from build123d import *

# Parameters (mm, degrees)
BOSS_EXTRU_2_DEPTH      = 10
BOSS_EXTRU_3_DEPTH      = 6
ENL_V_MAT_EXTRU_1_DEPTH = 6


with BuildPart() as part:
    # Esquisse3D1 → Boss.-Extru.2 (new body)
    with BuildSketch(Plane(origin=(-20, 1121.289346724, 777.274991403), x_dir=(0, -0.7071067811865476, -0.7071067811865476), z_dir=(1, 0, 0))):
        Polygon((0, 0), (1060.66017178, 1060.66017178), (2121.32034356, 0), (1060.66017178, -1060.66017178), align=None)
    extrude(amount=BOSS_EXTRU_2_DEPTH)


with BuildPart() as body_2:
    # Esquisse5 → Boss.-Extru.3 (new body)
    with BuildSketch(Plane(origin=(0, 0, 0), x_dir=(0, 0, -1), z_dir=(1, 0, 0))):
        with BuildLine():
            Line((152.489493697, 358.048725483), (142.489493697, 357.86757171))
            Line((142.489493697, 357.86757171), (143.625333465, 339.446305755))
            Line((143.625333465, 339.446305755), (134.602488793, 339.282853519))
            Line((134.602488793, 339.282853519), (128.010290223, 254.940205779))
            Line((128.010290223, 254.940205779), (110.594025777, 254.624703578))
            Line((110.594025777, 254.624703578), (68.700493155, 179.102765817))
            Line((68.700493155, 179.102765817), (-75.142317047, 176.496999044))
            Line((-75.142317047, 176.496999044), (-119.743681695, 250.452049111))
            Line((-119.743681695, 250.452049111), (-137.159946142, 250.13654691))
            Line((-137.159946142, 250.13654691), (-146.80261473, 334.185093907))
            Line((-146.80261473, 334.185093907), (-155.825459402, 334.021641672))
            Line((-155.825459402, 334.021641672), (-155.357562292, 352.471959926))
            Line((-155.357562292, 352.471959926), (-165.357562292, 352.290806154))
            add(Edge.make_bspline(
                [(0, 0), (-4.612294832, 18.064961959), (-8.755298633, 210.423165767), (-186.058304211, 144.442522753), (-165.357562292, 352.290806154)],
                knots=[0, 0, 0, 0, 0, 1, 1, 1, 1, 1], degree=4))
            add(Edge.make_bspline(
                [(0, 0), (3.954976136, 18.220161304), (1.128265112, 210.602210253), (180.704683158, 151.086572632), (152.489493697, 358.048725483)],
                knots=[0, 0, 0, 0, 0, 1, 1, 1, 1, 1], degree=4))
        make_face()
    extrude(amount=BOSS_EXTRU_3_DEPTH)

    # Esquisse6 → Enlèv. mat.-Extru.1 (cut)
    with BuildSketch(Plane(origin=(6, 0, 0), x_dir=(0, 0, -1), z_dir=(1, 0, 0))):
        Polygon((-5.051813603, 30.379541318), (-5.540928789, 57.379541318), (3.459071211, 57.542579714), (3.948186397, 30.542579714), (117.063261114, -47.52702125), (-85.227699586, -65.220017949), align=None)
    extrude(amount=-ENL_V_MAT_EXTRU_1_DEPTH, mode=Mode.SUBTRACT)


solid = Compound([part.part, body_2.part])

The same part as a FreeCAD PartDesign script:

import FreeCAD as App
import Part
import Sketcher

V = App.Vector
Q = App.Units.Quantity

doc = App.newDocument("Part")
body = doc.addObject("PartDesign::Body", "Body")

sketch1 = body.newObject("Sketcher::SketchObject", "Sketch")
sketch1.AttachmentSupport = (doc.getObject("YZ_Plane"), [""])
sketch1.MapMode = "FlatFace"
sketch1.AttachmentOffset = App.Placement(V(0, 0, -20), App.Rotation())
sketch1.addGeometry([
    Part.LineSegment(V(1121.289347, -722.725008, 0), V(1121.289347, 777.274991, 0)),
    Part.LineSegment(V(1121.289347, 777.274991, 0), V(-378.710653, 777.274991, 0)),
    Part.LineSegment(V(-378.710653, 777.274991, 0), V(-378.710653, -722.725008, 0)),
    Part.LineSegment(V(-378.710653, -722.725008, 0), V(1121.289347, -722.725008, 0)),
], False)
sketch1.addConstraint([
    Sketcher.Constraint("Coincident", 0, 2, 1, 1),
    Sketcher.Constraint("Coincident", 1, 2, 2, 1),
    Sketcher.Constraint("Coincident", 2, 2, 3, 1),
    Sketcher.Constraint("Coincident", 3, 2, 0, 1),
    Sketcher.Constraint("Vertical", 0),
    Sketcher.Constraint("Horizontal", 1),
    Sketcher.Constraint("Vertical", 2),
    Sketcher.Constraint("Horizontal", 3),
    Sketcher.Constraint("Equal", 3, 0),
    Sketcher.Constraint("DistanceX", 1, 2, 1, 1, Q("1500 mm")),
    Sketcher.Constraint("DistanceY", -1, 1, 0, 2, Q("777.274991 mm")),
    Sketcher.Constraint("DistanceX", -1, 1, 0, 2, Q("1121.289347 mm")),
])
pad1 = body.newObject("PartDesign::Pad", "Pad")
pad1.Profile = sketch1
pad1.Length = 10
body2 = doc.addObject("PartDesign::Body", "Body001")

sketch2 = body2.newObject("Sketcher::SketchObject", "Sketch001")
sketch2.AttachmentSupport = (doc.getObject("YZ_Plane001"), [""])
sketch2.MapMode = "FlatFace"
sketch2.addGeometry([
    Part.LineSegment(V(358.048725, -152.489494, 0), V(357.867572, -142.489494, 0)),
    Part.LineSegment(V(357.867572, -142.489494, 0), V(339.446306, -143.625333, 0)),
    Part.LineSegment(V(339.446306, -143.625333, 0), V(339.282854, -134.602489, 0)),
    Part.LineSegment(V(339.282854, -134.602489, 0), V(254.940206, -128.01029, 0)),
    Part.LineSegment(V(254.940206, -128.01029, 0), V(254.624704, -110.594026, 0)),
    Part.LineSegment(V(254.624704, -110.594026, 0), V(179.102766, -68.700493, 0)),
    Part.LineSegment(V(179.102766, -68.700493, 0), V(176.496999, 75.142317, 0)),
    Part.LineSegment(V(176.496999, 75.142317, 0), V(250.452049, 119.743682, 0)),
    Part.LineSegment(V(250.452049, 119.743682, 0), V(250.136547, 137.159946, 0)),
    Part.LineSegment(V(250.136547, 137.159946, 0), V(334.185094, 146.802615, 0)),
    Part.LineSegment(V(334.185094, 146.802615, 0), V(334.021642, 155.825459, 0)),
    Part.LineSegment(V(334.021642, 155.825459, 0), V(352.47196, 155.357562, 0)),
    Part.LineSegment(V(352.47196, 155.357562, 0), V(352.290806, 165.357562, 0)),
    Part.BSplineCurve([V(0, 0, 0), V(18.064962, 4.612295, 0), V(210.423166, 8.755299, 0), V(144.442523, 186.058304, 0), V(352.290806, 165.357562, 0)], [5, 5], [0, 1], False, 4, [1, 1, 1, 1, 1], False),
    Part.BSplineCurve([V(0, 0, 0), V(18.220161, -3.954976, 0), V(210.60221, -1.128265, 0), V(151.086573, -180.704683, 0), V(358.048725, -152.489494, 0)], [5, 5], [0, 1], False, 4, [1, 1, 1, 1, 1], False),
], False)
sketch2.addConstraint([
    Sketcher.Constraint("Block", 13),
    Sketcher.Constraint("Block", 14),
    Sketcher.Constraint("Coincident", 0, 2, 1, 1),
    Sketcher.Constraint("Coincident", 1, 2, 2, 1),
    Sketcher.Constraint("Coincident", 2, 2, 3, 1),
    Sketcher.Constraint("Coincident", 3, 2, 4, 1),
    Sketcher.Constraint("Coincident", 4, 2, 5, 1),
    Sketcher.Constraint("Coincident", 5, 2, 6, 1),
    Sketcher.Constraint("Coincident", 6, 2, 7, 1),
    Sketcher.Constraint("Coincident", 7, 2, 8, 1),
    Sketcher.Constraint("Coincident", 8, 2, 9, 1),
    Sketcher.Constraint("Coincident", 9, 2, 10, 1),
    Sketcher.Constraint("Coincident", 10, 2, 11, 1),
    Sketcher.Constraint("Coincident", 11, 2, 12, 1),
    Sketcher.Constraint("Coincident", 12, 2, 13, 2),
    Sketcher.Constraint("Coincident", 14, 2, 0, 1),
    Sketcher.Constraint("Parallel", 0, 2),
    Sketcher.Constraint("Parallel", 2, 4),
    Sketcher.Constraint("Parallel", 4, 6),
    Sketcher.Constraint("Parallel", 6, 8),
    Sketcher.Constraint("Parallel", 8, 10),
    Sketcher.Constraint("Parallel", 10, 12),
    Sketcher.Constraint("Equal", 5, 7),
    Sketcher.Constraint("Equal", 4, 8),
    Sketcher.Constraint("Equal", 3, 9),
    Sketcher.Constraint("Equal", 2, 10),
    Sketcher.Constraint("Equal", 1, 11),
    Sketcher.Constraint("Equal", 0, 12),
    Sketcher.Constraint("DistanceY", 11, 2, 12, 2, Q("10 mm")),
    Sketcher.Constraint("DistanceX", -1, 1, 6, 2, Q("176.496999 mm")),
    Sketcher.Constraint("DistanceY", 0, 2, 5, 2, Q("73.789001 mm")),
    Sketcher.Constraint("DistanceY", 2, 2, 3, 2, Q("6.592199 mm")),
    Sketcher.Constraint("DistanceX", 3, 2, 1, 2, Q("84.5061 mm")),
    Sketcher.Constraint("Distance", 1, Q("18.45625 mm")),
    Sketcher.Constraint("Distance", 4, Q("17.419122 mm")),
    Sketcher.Constraint("Distance", 6, Q("143.86641 mm")),
    Sketcher.Constraint("DistanceX", -1, 1, 0, 2, Q("357.867572 mm")),
    Sketcher.Constraint("DistanceY", 2, 2, -1, 1, Q("134.602489 mm")),
    Sketcher.Constraint("DistanceX", -1, 1, 7, 2, Q("250.452049 mm")),
    Sketcher.Constraint("DistanceY", -1, 1, 7, 2, Q("119.743682 mm")),
])
pad2 = body2.newObject("PartDesign::Pad", "Pad001")
pad2.Profile = sketch2
pad2.Length = 6

sketch3 = body2.newObject("Sketcher::SketchObject", "Sketch002")
sketch3.AttachmentSupport = (doc.getObject("YZ_Plane001"), [""])
sketch3.MapMode = "FlatFace"
sketch3.AttachmentOffset = App.Placement(V(0, 0, 6), App.Rotation())
sketch3.addGeometry([
    Part.LineSegment(V(57.379541, 5.540929, 0), V(30.379541, 5.051814, 0)),
    Part.LineSegment(V(30.379541, 5.051814, 0), V(-65.220018, 85.2277, 0)),
    Part.LineSegment(V(-65.220018, 85.2277, 0), V(-47.527021, -117.063261, 0)),
    Part.LineSegment(V(-47.527021, -117.063261, 0), V(30.54258, -3.948186, 0)),
    Part.LineSegment(V(30.54258, -3.948186, 0), V(57.54258, -3.459071, 0)),
    Part.LineSegment(V(57.54258, -3.459071, 0), V(57.379541, 5.540929, 0)),
], False)
sketch3.addConstraint([
    Sketcher.Constraint("Coincident", 0, 2, 1, 1),
    Sketcher.Constraint("Coincident", 1, 2, 2, 1),
    Sketcher.Constraint("Coincident", 2, 2, 3, 1),
    Sketcher.Constraint("Coincident", 3, 2, 4, 1),
    Sketcher.Constraint("Coincident", 4, 2, 5, 1),
    Sketcher.Constraint("Coincident", 5, 2, 0, 1),
    Sketcher.Constraint("Parallel", 0, 4),
    Sketcher.Constraint("Perpendicular", 4, 5),
    Sketcher.Constraint("Equal", 0, 4),
    Sketcher.Constraint("DistanceY", 3, 2, 0, 2, Q("9 mm")),
    Sketcher.Constraint("DistanceX", 3, 2, 4, 2, Q("27 mm")),
    Sketcher.Constraint("DistanceY", -1, 1, 1, 2, Q("85.2277 mm")),
    Sketcher.Constraint("DistanceX", 2, 2, 3, 2, Q("78.069601 mm")),
    Sketcher.Constraint("Distance", 0, Q("27.00443 mm")),
    Sketcher.Constraint("Distance", 1, Q("124.769581 mm")),
    Sketcher.Constraint("Distance", 2, Q("203.063229 mm")),
    Sketcher.Constraint("Distance", 3, Q("137.44047 mm")),
    Sketcher.Constraint("DistanceX", -1, 1, 0, 2, Q("30.379541 mm")),
])
pocket1 = body2.newObject("PartDesign::Pocket", "Pocket")
pocket1.Profile = sketch3
pocket1.Length = 6

doc.recompute()
